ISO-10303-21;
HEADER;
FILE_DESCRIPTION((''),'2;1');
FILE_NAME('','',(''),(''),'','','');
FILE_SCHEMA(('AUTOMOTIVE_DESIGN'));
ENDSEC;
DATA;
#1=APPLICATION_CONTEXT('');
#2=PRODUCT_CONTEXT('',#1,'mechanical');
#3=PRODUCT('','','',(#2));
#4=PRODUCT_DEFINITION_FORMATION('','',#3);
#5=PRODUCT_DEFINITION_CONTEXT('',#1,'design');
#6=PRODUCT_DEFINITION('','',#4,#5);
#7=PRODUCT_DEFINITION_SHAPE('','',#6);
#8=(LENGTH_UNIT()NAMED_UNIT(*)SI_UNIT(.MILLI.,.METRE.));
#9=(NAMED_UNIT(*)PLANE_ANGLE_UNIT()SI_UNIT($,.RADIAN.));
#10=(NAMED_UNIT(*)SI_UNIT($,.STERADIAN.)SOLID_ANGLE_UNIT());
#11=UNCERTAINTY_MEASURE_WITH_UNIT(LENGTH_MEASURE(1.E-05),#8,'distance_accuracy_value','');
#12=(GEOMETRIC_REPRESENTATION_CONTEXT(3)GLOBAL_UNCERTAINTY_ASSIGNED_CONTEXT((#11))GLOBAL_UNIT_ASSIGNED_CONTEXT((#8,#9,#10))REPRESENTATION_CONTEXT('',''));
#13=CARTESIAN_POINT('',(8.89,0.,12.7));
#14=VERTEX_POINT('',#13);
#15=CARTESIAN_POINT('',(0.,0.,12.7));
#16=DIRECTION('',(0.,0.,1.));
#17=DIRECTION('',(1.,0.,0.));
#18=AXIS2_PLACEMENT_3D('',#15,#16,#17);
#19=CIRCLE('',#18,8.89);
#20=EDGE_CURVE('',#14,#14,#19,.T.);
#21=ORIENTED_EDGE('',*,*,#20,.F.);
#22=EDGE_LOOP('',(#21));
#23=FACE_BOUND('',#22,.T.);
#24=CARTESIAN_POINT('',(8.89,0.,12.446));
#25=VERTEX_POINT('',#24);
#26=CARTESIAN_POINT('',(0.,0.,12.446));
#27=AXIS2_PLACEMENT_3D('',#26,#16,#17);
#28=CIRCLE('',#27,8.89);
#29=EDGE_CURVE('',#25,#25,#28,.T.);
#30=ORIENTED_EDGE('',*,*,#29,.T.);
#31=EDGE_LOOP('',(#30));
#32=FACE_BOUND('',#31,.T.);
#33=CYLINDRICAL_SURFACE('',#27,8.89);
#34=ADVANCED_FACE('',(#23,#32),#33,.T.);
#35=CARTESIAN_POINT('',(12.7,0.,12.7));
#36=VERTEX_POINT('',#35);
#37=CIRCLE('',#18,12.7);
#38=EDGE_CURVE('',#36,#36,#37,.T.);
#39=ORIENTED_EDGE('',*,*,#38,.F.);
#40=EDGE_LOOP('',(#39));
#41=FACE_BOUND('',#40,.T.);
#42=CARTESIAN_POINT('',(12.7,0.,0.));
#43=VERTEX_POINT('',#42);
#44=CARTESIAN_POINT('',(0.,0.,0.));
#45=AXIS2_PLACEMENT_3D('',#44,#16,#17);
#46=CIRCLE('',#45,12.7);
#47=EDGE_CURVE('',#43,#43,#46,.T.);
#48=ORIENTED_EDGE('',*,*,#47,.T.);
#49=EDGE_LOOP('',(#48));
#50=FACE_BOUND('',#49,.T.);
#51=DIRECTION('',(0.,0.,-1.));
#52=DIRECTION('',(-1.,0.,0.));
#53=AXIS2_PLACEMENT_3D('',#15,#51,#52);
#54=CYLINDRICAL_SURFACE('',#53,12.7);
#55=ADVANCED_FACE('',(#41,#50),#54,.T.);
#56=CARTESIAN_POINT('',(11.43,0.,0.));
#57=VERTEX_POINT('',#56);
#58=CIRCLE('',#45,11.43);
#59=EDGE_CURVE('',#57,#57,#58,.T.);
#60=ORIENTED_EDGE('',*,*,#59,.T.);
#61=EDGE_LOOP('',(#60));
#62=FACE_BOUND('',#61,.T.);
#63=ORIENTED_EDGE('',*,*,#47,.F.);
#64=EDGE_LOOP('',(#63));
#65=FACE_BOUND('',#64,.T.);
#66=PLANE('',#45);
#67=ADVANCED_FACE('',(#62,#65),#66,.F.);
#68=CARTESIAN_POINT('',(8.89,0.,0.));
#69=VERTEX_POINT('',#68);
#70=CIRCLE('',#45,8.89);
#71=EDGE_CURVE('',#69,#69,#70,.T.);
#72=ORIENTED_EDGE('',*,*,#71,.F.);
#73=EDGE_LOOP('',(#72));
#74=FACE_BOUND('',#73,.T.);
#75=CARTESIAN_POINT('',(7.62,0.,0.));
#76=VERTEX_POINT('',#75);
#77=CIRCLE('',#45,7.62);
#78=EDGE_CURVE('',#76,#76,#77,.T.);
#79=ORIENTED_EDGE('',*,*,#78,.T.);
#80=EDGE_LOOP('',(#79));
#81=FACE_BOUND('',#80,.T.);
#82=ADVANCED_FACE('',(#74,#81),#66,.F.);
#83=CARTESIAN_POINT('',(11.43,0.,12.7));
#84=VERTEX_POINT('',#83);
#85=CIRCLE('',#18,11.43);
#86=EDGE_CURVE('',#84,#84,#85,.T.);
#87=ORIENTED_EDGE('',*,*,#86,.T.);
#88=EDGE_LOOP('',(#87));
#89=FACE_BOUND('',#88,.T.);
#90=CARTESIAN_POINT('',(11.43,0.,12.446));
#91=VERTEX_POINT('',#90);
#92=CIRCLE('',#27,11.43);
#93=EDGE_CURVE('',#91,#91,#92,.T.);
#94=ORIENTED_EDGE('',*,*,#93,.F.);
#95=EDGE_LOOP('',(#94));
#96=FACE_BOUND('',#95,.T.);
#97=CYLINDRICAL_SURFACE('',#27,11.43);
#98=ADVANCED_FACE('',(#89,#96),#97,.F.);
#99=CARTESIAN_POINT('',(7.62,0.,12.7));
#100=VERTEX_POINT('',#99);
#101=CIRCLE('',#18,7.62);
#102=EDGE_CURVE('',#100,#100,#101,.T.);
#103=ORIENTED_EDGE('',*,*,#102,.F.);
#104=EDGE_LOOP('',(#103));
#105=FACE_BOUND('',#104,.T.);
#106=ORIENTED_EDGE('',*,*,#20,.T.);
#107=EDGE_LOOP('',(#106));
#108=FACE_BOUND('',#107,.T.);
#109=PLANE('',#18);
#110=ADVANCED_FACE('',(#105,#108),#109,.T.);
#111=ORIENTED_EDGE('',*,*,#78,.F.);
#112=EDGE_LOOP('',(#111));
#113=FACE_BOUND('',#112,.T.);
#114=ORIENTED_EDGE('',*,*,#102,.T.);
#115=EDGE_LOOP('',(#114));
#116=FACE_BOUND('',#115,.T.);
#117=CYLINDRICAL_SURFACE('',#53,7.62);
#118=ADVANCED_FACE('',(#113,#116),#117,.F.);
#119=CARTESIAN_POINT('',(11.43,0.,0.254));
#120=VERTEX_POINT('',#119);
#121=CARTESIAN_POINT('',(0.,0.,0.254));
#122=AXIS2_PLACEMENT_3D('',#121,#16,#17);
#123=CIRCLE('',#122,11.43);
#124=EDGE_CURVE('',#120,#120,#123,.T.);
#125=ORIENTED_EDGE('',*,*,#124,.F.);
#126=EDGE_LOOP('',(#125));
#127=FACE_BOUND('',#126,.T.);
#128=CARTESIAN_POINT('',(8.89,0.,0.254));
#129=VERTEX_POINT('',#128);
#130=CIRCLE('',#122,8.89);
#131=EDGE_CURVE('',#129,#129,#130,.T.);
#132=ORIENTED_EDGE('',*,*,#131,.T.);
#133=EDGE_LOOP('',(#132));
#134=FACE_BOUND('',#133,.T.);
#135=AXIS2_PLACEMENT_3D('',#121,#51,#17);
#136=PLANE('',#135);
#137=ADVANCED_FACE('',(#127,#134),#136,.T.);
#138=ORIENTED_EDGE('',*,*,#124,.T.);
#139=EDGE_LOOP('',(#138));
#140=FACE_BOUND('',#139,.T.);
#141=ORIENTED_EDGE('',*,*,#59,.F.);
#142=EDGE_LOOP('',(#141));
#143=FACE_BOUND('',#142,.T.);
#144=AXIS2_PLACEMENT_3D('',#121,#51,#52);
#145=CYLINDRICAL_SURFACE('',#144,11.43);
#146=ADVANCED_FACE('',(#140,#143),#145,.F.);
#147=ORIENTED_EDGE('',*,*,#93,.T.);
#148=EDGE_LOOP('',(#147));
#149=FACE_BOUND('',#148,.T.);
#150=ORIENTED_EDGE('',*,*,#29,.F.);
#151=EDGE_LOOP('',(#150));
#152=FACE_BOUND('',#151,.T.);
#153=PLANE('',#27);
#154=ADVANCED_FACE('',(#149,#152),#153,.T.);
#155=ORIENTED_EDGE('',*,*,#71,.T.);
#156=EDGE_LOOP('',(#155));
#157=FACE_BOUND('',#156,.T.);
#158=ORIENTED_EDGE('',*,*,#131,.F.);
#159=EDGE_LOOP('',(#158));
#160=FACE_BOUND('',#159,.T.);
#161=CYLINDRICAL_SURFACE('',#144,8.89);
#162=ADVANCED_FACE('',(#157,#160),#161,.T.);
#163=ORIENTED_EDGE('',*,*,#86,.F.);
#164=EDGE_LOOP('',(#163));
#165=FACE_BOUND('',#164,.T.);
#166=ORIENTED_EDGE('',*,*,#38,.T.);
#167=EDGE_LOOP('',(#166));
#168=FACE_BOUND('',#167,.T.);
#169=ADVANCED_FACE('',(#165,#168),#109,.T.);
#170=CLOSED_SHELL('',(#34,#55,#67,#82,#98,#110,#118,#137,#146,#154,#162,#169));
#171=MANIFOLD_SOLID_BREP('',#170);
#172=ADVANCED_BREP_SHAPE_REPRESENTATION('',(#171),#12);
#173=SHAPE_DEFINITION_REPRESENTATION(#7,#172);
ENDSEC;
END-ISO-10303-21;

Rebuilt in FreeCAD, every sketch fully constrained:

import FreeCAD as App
import Part
import Sketcher
Q = App.Units.Quantity

doc = App.newDocument("Part")
body = doc.addObject("PartDesign::Body", "Body")

sketch1 = doc.addObject("Sketcher::SketchObject", "Sketch")
body.addObject(sketch1)
sketch1.AttachmentSupport = (doc.XY_Plane, [""])
sketch1.MapMode = "FlatFace"
sketch1.addGeometry(Part.Circle(App.Vector(0, 0, 0), App.Vector(0, 0, 1), 12.7), False)
sketch1.addGeometry(Part.Circle(App.Vector(0, 0, 0), App.Vector(0, 0, 1), 7.62), False)
sketch1.addConstraint(Sketcher.Constraint("Coincident", 0, 3, -1, 1))
sketch1.addConstraint(Sketcher.Constraint("Coincident", 1, 3, -1, 1))
sketch1.addConstraint(Sketcher.Constraint("Diameter", 0, Q("1 in")))
sketch1.addConstraint(Sketcher.Constraint("Diameter", 1, Q("0.6 in")))
pad1 = doc.addObject("PartDesign::Pad", "Pad")
body.addObject(pad1)
pad1.Profile = sketch1
pad1.Length = Q("0.5 in")

sketch2 = doc.addObject("Sketcher::SketchObject", "Sketch001")
body.addObject(sketch2)
sketch2.AttachmentSupport = (doc.XY_Plane, [""])
sketch2.MapMode = "FlatFace"
sketch2.AttachmentOffset = App.Placement(App.Vector(0, 0, 0.5 * 25.4), App.Rotation())
sketch2.addGeometry(Part.Circle(App.Vector(0, 0, 0), App.Vector(0, 0, 1), 11.43), False)
sketch2.addGeometry(Part.Circle(App.Vector(0, 0, 0), App.Vector(0, 0, 1), 8.89), False)
sketch2.addConstraint(Sketcher.Constraint("Coincident", 0, 3, -1, 1))
sketch2.addConstraint(Sketcher.Constraint("Coincident", 1, 3, -1, 1))
sketch2.addConstraint(Sketcher.Constraint("Diameter", 0, Q("0.9 in")))
sketch2.addConstraint(Sketcher.Constraint("Diameter", 1, Q("0.7 in")))
pocket1 = doc.addObject("PartDesign::Pocket", "Pocket")
body.addObject(pocket1)
pocket1.Profile = sketch2
pocket1.Length = Q("0.01 in")
doc.recompute()

datumplane = doc.addObject("PartDesign::Plane", "DatumPlane")
body.addObject(datumplane)
datumplane.AttachmentSupport = (doc.XY_Plane, [""])
datumplane.MapMode = "FlatFace"
datumplane.AttachmentOffset = App.Placement(App.Vector(0, 0, 0.25 * 25.4), App.Rotation())
mirrored = doc.addObject("PartDesign::Mirrored", "Mirrored")
body.addObject(mirrored)
mirrored.Originals = [pocket1]
mirrored.MirrorPlane = (datumplane, [""])
body.Tip = mirrored

doc.recompute()
